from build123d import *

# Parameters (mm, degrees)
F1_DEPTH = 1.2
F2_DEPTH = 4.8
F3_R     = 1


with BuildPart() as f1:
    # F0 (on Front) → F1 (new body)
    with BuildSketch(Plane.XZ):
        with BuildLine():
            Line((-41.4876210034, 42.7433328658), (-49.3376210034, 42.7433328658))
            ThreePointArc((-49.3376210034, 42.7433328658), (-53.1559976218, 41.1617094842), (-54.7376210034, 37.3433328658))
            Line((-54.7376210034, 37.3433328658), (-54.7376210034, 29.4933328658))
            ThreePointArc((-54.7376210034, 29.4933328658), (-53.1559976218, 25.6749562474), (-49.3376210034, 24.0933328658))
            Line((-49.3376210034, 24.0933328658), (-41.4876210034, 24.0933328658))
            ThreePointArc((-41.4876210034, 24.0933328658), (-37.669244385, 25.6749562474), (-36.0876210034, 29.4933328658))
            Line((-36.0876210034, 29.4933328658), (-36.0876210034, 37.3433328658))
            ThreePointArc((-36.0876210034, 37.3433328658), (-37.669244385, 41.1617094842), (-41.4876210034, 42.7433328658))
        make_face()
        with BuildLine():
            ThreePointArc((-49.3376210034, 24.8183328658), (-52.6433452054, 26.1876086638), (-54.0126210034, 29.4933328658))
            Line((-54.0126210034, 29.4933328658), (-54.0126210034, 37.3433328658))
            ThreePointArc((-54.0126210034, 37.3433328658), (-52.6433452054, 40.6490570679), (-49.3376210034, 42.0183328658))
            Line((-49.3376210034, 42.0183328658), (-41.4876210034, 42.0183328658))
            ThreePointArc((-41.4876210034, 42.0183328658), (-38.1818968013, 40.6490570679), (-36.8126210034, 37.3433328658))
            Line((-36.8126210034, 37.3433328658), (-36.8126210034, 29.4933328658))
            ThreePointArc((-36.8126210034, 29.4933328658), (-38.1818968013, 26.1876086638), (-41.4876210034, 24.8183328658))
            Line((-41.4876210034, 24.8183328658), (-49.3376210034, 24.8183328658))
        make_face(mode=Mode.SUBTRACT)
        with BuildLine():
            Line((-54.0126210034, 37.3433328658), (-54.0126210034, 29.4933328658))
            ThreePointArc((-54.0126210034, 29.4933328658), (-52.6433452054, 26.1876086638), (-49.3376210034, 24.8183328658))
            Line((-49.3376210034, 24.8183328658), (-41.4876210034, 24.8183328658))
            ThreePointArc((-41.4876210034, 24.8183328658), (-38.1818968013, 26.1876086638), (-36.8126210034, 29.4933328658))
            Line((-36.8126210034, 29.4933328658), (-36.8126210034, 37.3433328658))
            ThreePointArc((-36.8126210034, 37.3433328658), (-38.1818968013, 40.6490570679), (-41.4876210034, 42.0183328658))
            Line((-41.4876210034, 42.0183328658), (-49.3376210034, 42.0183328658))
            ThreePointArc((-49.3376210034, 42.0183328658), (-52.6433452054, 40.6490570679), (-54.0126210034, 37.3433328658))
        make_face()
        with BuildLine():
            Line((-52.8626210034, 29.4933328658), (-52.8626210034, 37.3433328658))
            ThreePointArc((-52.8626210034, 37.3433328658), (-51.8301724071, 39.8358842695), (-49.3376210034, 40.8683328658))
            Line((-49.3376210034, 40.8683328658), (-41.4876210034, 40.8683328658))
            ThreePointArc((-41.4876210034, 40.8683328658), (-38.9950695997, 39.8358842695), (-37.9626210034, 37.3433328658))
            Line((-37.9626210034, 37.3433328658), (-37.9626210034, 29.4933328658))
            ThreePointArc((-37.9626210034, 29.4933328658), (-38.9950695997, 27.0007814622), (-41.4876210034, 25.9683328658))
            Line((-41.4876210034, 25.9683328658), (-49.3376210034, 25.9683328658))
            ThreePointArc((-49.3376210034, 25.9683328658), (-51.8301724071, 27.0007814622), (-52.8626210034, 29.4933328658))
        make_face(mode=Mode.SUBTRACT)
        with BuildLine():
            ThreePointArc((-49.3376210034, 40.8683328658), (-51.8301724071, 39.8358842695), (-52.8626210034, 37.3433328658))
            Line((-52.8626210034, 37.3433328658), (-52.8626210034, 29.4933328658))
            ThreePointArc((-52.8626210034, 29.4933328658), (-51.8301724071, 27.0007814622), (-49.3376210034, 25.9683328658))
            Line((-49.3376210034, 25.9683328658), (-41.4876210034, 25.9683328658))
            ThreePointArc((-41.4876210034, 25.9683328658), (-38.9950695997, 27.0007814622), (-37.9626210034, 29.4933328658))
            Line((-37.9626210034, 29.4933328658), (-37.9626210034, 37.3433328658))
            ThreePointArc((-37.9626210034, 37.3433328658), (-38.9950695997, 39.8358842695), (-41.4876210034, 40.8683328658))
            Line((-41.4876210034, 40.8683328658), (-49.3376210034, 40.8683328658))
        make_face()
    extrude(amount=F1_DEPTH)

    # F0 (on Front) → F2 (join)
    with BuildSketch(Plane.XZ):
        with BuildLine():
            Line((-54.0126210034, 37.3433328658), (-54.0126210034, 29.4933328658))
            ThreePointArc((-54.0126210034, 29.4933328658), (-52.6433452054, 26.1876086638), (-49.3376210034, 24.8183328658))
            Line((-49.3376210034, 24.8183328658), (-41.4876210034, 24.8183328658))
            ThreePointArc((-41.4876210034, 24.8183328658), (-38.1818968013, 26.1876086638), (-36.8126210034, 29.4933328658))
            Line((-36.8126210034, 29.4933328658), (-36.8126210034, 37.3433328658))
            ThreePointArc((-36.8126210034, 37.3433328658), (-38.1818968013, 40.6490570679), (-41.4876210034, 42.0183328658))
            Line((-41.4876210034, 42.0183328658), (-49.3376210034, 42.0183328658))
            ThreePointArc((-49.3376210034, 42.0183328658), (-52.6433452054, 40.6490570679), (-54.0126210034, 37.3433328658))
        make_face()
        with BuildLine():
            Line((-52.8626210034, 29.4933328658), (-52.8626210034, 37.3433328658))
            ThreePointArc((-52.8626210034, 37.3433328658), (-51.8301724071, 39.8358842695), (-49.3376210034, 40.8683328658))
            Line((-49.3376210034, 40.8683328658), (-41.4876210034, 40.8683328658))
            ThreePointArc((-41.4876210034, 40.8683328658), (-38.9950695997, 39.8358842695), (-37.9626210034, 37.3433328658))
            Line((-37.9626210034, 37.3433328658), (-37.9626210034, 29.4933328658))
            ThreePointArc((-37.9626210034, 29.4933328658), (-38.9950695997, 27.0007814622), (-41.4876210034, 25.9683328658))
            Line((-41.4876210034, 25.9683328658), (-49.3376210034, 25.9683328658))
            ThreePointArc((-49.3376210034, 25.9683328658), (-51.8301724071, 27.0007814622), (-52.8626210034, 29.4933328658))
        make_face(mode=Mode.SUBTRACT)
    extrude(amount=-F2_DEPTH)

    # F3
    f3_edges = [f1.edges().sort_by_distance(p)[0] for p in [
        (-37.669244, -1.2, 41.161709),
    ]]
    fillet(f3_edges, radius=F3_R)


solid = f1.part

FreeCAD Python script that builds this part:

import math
import FreeCAD as App
import Part
import Sketcher
from FreeCAD import Vector


def edges_at(feature, points):
    """Names of the edges that pass closest to the given points."""
    edges = feature.Shape.Edges
    near = lambda p: min(range(len(edges)), key=lambda i: edges[i].distToShape(Part.Vertex(*p))[0])
    return sorted({f"Edge{near(p) + 1}" for p in points})

doc = App.newDocument("Part")
body = doc.addObject("PartDesign::Body", "Body")

# Sketch on XZ plane
sketch1 = body.newObject("Sketcher::SketchObject", "Sketch")
sketch1.AttachmentSupport = (doc.getObject("XZ_Plane"), [""])
sketch1.MapMode = "FlatFace"
sketch1.addGeometry([
    Part.LineSegment(Vector(-41, 43, 0), Vector(-49, 43, 0)),  # 0
    Part.ArcOfCircle(Part.Circle(Vector(-49, 37, 0), Vector(0, 0, 1), 5), math.radians(90), math.radians(180)),  # 1
    Part.LineSegment(Vector(-55, 37, 0), Vector(-55, 29, 0)),  # 2
    Part.ArcOfCircle(Part.Circle(Vector(-49, 29, 0), Vector(0, 0, 1), 5), math.radians(180), math.radians(270)),  # 3
    Part.LineSegment(Vector(-49, 24, 0), Vector(-41, 24, 0)),  # 4
    Part.ArcOfCircle(Part.Circle(Vector(-41, 29, 0), Vector(0, 0, 1), 5), math.radians(-90), math.radians(0)),  # 5
    Part.LineSegment(Vector(-36, 29, 0), Vector(-36, 37, 0)),  # 6
    Part.ArcOfCircle(Part.Circle(Vector(-41, 37, 0), Vector(0, 0, 1), 5), math.radians(0), math.radians(90)),  # 7
], False)
sketch1.addConstraint([
    Sketcher.Constraint("Tangent", 0, 2, 1, 1),
    Sketcher.Constraint("Tangent", 1, 2, 2, 1),
    Sketcher.Constraint("Tangent", 2, 2, 3, 1),
    Sketcher.Constraint("Tangent", 3, 2, 4, 1),
    Sketcher.Constraint("Tangent", 4, 2, 5, 1),
    Sketcher.Constraint("Tangent", 5, 2, 6, 1),
    Sketcher.Constraint("Tangent", 6, 2, 7, 1),
    Sketcher.Constraint("Tangent", 7, 2, 0, 1),
    Sketcher.Constraint("Horizontal", 0),
    Sketcher.Constraint("Vertical", 2),
    Sketcher.Constraint("Horizontal", 4),
    Sketcher.Constraint("Vertical", 6),
    Sketcher.Constraint("Equal", 1, 3),
    Sketcher.Constraint("Equal", 3, 5),
    Sketcher.Constraint("Equal", 5, 7),
    Sketcher.Constraint("Equal", 4, 2),
    Sketcher.Constraint("Radius", 1, 5.4),
    Sketcher.Constraint("DistanceX", 0, 2, 0, 1, 7.85),
    Sketcher.Constraint("DistanceX", 1, 3, -1, 1, 49.337621),
    Sketcher.Constraint("DistanceY", -1, 1, 1, 3, 37.343333),
])
pad1 = body.newObject("PartDesign::Pad", "Pad")
pad1.Profile = sketch1
pad1.Length = 1.2

# Sketch on XZ plane
sketch2 = body.newObject("Sketcher::SketchObject", "Sketch001")
sketch2.AttachmentSupport = (doc.getObject("XZ_Plane"), [""])
sketch2.MapMode = "FlatFace"
sketch2.addGeometry([
    Part.LineSegment(Vector(-54, 37.3, 0), Vector(-54, 29.5, 0)),  # 0
    Part.ArcOfCircle(Part.Circle(Vector(-49.3, 29.5, 0), Vector(0, 0, 1), 4.7), math.radians(180), math.radians(270)),  # 1
    Part.LineSegment(Vector(-49.3, 24.8, 0), Vector(-41.5, 24.8, 0)),  # 2
    Part.ArcOfCircle(Part.Circle(Vector(-41.5, 29.5, 0), Vector(0, 0, 1), 4.7), math.radians(-90), math.radians(0)),  # 3
    Part.LineSegment(Vector(-36.8, 29.5, 0), Vector(-36.8, 37.3, 0)),  # 4
    Part.ArcOfCircle(Part.Circle(Vector(-41.5, 37.3, 0), Vector(0, 0, 1), 4.7), math.radians(0), math.radians(90)),  # 5
    Part.LineSegment(Vector(-41.5, 42, 0), Vector(-49.3, 42, 0)),  # 6
    Part.ArcOfCircle(Part.Circle(Vector(-49.3, 37.3, 0), Vector(0, 0, 1), 4.7), math.radians(90), math.radians(180)),  # 7
    Part.ArcOfCircle(Part.Circle(Vector(-49.3, 29.5, 0), Vector(0, 0, 1), 3.5), math.radians(180), math.radians(270)),  # 8
    Part.LineSegment(Vector(-52.9, 29.5, 0), Vector(-52.9, 37.3, 0)),  # 9
    Part.ArcOfCircle(Part.Circle(Vector(-49.3, 37.3, 0), Vector(0, 0, 1), 3.5), math.radians(90), math.radians(180)),  # 10
    Part.LineSegment(Vector(-49.3, 40.9, 0), Vector(-41.5, 40.9, 0)),  # 11
    Part.ArcOfCircle(Part.Circle(Vector(-41.5, 37.3, 0), Vector(0, 0, 1), 3.5), math.radians(0), math.radians(90)),  # 12
    Part.LineSegment(Vector(-38, 37.3, 0), Vector(-38, 29.5, 0)),  # 13
    Part.ArcOfCircle(Part.Circle(Vector(-41.5, 29.5, 0), Vector(0, 0, 1), 3.5), math.radians(-90), math.radians(0)),  # 14
    Part.LineSegment(Vector(-41.5, 26, 0), Vector(-49.3, 26, 0)),  # 15
], False)
sketch2.addConstraint([
    Sketcher.Constraint("Tangent", 0, 2, 1, 1),
    Sketcher.Constraint("Tangent", 1, 2, 2, 1),
    Sketcher.Constraint("Tangent", 2, 2, 3, 1),
    Sketcher.Constraint("Tangent", 3, 2, 4, 1),
    Sketcher.Constraint("Tangent", 4, 2, 5, 1),
    Sketcher.Constraint("Tangent", 5, 2, 6, 1),
    Sketcher.Constraint("Tangent", 6, 2, 7, 1),
    Sketcher.Constraint("Tangent", 7, 2, 0, 1),
    Sketcher.Constraint("Tangent", 8, 1, 9, 1),
    Sketcher.Constraint("Tangent", 9, 2, 10, 2),
    Sketcher.Constraint("Tangent", 10, 1, 11, 1),
    Sketcher.Constraint("Tangent", 11, 2, 12, 2),
    Sketcher.Constraint("Tangent", 12, 1, 13, 1),
    Sketcher.Constraint("Tangent", 13, 2, 14, 2),
    Sketcher.Constraint("Tangent", 14, 1, 15, 1),
    Sketcher.Constraint("Tangent", 15, 2, 8, 2),
    Sketcher.Constraint("Vertical", 0),
    Sketcher.Constraint("Horizontal", 2),
    Sketcher.Constraint("Vertical", 4),
    Sketcher.Constraint("Horizontal", 6),
    Sketcher.Constraint("Vertical", 9),
    Sketcher.Constraint("Horizontal", 11),
    Sketcher.Constraint("Vertical", 13),
    Sketcher.Constraint("Horizontal", 15),
    Sketcher.Constraint("Coincident", 8, 3, 1, 3),
    Sketcher.Constraint("Coincident", 10, 3, 7, 3),
    Sketcher.Constraint("Coincident", 12, 3, 5, 3),
    Sketcher.Constraint("Equal", 1, 3),
    Sketcher.Constraint("Equal", 3, 5),
    Sketcher.Constraint("Equal", 5, 7),
    Sketcher.Constraint("Equal", 12, 14),
    Sketcher.Constraint("Equal", 15, 0),
    Sketcher.Constraint("Radius", 1, 4.675),
    Sketcher.Constraint("Radius", 8, 3.525),
    Sketcher.Constraint("DistanceX", 2, 1, 2, 2, 7.85),
    Sketcher.Constraint("DistanceX", 1, 3, -1, 1, 49.337621),
    Sketcher.Constraint("DistanceY", -1, 1, 1, 3, 29.493333),
])
pad2 = body.newObject("PartDesign::Pad", "Pad001")
pad2.Profile = sketch2
pad2.Length = 4.8
pad2.Reversed = True
doc.recompute()

fillet = body.newObject("PartDesign::Fillet", "Fillet")
fillet.Base = (pad2, edges_at(pad2, [(-37.669, -1.2, 41.162)]))
fillet.Radius = 1

doc.recompute()
